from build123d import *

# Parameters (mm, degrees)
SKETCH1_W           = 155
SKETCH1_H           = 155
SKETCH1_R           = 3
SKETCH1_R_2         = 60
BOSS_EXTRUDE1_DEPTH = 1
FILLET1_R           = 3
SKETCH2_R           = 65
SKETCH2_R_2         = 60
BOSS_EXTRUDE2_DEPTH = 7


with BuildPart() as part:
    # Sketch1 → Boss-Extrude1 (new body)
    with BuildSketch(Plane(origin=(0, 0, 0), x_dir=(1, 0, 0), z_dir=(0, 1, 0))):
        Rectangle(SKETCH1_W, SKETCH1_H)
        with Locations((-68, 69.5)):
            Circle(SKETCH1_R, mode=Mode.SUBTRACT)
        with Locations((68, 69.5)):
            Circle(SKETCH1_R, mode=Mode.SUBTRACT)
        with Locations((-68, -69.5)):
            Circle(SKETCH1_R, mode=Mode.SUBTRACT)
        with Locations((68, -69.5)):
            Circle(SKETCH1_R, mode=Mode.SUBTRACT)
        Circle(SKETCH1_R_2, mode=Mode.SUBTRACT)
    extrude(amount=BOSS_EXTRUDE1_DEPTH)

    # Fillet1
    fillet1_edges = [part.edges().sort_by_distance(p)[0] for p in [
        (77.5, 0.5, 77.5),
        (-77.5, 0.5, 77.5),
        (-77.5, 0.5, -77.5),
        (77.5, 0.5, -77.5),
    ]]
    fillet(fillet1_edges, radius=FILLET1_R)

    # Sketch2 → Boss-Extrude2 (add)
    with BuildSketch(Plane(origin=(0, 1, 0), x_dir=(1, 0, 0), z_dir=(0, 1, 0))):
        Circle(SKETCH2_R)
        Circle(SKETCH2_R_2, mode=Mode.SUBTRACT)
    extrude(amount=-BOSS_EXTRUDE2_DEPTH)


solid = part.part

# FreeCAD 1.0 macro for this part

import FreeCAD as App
import Part
import Sketcher

V = App.Vector
Q = App.Units.Quantity


def edges_at(feature, points):
    """Names of the edges that pass closest to the given points."""
    edges = feature.Shape.Edges
    near = lambda p: min(range(len(edges)), key=lambda i: edges[i].distToShape(Part.Vertex(*p))[0])
    return sorted({f"Edge{near(p) + 1}" for p in points})

doc = App.newDocument("Part")
body = doc.addObject("PartDesign::Body", "Body")

# Sketch on XZ plane
sketch1 = body.newObject("Sketcher::SketchObject", "Sketch")
sketch1.AttachmentSupport = (doc.getObject("XZ_Plane"), [""])
sketch1.MapMode = "FlatFace"
sketch1.addGeometry([
    Part.LineSegment(V(-77.5, -77.5, 0), V(-77.5, 77.5, 0)),  # 0
    Part.LineSegment(V(-77.5, 77.5, 0), V(77.5, 77.5, 0)),  # 1
    Part.LineSegment(V(77.5, 77.5, 0), V(77.5, -77.5, 0)),  # 2
    Part.LineSegment(V(77.5, -77.5, 0), V(-77.5, -77.5, 0)),  # 3
    Part.Circle(V(-68, 69.5, 0), V(0, 0, 1), 3),  # 4
    Part.Circle(V(68, 69.5, 0), V(0, 0, 1), 3),  # 5
    Part.Circle(V(-68, -69.5, 0), V(0, 0, 1), 3),  # 6
    Part.Circle(V(0, 0, 0), V(0, 0, 1), 60),  # 7
    Part.Circle(V(68, -69.5, 0), V(0, 0, 1), 3),  # 8
], False)
sketch1.addConstraint([
    Sketcher.Constraint("Coincident", 0, 2, 1, 1),
    Sketcher.Constraint("Coincident", 1, 2, 2, 1),
    Sketcher.Constraint("Coincident", 2, 2, 3, 1),
    Sketcher.Constraint("Coincident", 3, 2, 0, 1),
    Sketcher.Constraint("Vertical", 0),
    Sketcher.Constraint("Horizontal", 1),
    Sketcher.Constraint("Vertical", 2),
    Sketcher.Constraint("Horizontal", 3),
    Sketcher.Constraint("Coincident", 7, 3, -1, 1),
    Sketcher.Constraint("Equal", 4, 5),
    Sketcher.Constraint("Equal", 5, 6),
    Sketcher.Constraint("Equal", 6, 8),
    Sketcher.Constraint("Symmetric", 5, 3, 6, 3, -1, 1),
    Sketcher.Constraint("Symmetric", 4, 3, 8, 3, -1, 1),
    Sketcher.Constraint("Symmetric", 0, 2, 2, 2, -1, 1),
    Sketcher.Constraint("Symmetric", 4, 3, 5, 3, -2),
    Sketcher.Constraint("Equal", 3, 0),
    Sketcher.Constraint("Diameter", 4, Q("6 mm")),
    Sketcher.Constraint("Diameter", 7, Q("120 mm")),
    Sketcher.Constraint("DistanceX", 1, 1, 1, 2, Q("155 mm")),
    Sketcher.Constraint("DistanceX", 4, 3, -1, 1, Q("68 mm")),
    Sketcher.Constraint("DistanceY", 6, 3, 4, 3, Q("139 mm")),
])
pad1 = body.newObject("PartDesign::Pad", "Pad")
pad1.Profile = sketch1
pad1.Length = 1
pad1.Reversed = True
doc.recompute()

fillet = body.newObject("PartDesign::Fillet", "Fillet")
fillet.Base = (pad1, edges_at(pad1, [
    (77.5, 0.5, 77.5),
    (-77.5, 0.5, 77.5),
    (-77.5, 0.5, -77.5),
    (77.5, 0.5, -77.5),
]))
fillet.Radius = 3

# Sketch on XZ plane
sketch2 = body.newObject("Sketcher::SketchObject", "Sketch001")
sketch2.AttachmentSupport = (doc.getObject("XZ_Plane"), [""])
sketch2.MapMode = "FlatFace"
sketch2.AttachmentOffset = App.Placement(V(0, 0, -1), App.Rotation())
sketch2.addGeometry([
    Part.Circle(V(0, 0, 0), V(0, 0, 1), 65),
    Part.Circle(V(0, 0, 0), V(0, 0, 1), 60),
], False)
sketch2.addConstraint([
    Sketcher.Constraint("Coincident", 0, 3, -1, 1),
    Sketcher.Constraint("Coincident", 1, 3, -1, 1),
    Sketcher.Constraint("Diameter", 0, Q("130 mm")),
    Sketcher.Constraint("Diameter", 1, Q("120 mm")),
])
pad2 = body.newObject("PartDesign::Pad", "Pad001")
pad2.Profile = sketch2
pad2.Length = 7

doc.recompute()
